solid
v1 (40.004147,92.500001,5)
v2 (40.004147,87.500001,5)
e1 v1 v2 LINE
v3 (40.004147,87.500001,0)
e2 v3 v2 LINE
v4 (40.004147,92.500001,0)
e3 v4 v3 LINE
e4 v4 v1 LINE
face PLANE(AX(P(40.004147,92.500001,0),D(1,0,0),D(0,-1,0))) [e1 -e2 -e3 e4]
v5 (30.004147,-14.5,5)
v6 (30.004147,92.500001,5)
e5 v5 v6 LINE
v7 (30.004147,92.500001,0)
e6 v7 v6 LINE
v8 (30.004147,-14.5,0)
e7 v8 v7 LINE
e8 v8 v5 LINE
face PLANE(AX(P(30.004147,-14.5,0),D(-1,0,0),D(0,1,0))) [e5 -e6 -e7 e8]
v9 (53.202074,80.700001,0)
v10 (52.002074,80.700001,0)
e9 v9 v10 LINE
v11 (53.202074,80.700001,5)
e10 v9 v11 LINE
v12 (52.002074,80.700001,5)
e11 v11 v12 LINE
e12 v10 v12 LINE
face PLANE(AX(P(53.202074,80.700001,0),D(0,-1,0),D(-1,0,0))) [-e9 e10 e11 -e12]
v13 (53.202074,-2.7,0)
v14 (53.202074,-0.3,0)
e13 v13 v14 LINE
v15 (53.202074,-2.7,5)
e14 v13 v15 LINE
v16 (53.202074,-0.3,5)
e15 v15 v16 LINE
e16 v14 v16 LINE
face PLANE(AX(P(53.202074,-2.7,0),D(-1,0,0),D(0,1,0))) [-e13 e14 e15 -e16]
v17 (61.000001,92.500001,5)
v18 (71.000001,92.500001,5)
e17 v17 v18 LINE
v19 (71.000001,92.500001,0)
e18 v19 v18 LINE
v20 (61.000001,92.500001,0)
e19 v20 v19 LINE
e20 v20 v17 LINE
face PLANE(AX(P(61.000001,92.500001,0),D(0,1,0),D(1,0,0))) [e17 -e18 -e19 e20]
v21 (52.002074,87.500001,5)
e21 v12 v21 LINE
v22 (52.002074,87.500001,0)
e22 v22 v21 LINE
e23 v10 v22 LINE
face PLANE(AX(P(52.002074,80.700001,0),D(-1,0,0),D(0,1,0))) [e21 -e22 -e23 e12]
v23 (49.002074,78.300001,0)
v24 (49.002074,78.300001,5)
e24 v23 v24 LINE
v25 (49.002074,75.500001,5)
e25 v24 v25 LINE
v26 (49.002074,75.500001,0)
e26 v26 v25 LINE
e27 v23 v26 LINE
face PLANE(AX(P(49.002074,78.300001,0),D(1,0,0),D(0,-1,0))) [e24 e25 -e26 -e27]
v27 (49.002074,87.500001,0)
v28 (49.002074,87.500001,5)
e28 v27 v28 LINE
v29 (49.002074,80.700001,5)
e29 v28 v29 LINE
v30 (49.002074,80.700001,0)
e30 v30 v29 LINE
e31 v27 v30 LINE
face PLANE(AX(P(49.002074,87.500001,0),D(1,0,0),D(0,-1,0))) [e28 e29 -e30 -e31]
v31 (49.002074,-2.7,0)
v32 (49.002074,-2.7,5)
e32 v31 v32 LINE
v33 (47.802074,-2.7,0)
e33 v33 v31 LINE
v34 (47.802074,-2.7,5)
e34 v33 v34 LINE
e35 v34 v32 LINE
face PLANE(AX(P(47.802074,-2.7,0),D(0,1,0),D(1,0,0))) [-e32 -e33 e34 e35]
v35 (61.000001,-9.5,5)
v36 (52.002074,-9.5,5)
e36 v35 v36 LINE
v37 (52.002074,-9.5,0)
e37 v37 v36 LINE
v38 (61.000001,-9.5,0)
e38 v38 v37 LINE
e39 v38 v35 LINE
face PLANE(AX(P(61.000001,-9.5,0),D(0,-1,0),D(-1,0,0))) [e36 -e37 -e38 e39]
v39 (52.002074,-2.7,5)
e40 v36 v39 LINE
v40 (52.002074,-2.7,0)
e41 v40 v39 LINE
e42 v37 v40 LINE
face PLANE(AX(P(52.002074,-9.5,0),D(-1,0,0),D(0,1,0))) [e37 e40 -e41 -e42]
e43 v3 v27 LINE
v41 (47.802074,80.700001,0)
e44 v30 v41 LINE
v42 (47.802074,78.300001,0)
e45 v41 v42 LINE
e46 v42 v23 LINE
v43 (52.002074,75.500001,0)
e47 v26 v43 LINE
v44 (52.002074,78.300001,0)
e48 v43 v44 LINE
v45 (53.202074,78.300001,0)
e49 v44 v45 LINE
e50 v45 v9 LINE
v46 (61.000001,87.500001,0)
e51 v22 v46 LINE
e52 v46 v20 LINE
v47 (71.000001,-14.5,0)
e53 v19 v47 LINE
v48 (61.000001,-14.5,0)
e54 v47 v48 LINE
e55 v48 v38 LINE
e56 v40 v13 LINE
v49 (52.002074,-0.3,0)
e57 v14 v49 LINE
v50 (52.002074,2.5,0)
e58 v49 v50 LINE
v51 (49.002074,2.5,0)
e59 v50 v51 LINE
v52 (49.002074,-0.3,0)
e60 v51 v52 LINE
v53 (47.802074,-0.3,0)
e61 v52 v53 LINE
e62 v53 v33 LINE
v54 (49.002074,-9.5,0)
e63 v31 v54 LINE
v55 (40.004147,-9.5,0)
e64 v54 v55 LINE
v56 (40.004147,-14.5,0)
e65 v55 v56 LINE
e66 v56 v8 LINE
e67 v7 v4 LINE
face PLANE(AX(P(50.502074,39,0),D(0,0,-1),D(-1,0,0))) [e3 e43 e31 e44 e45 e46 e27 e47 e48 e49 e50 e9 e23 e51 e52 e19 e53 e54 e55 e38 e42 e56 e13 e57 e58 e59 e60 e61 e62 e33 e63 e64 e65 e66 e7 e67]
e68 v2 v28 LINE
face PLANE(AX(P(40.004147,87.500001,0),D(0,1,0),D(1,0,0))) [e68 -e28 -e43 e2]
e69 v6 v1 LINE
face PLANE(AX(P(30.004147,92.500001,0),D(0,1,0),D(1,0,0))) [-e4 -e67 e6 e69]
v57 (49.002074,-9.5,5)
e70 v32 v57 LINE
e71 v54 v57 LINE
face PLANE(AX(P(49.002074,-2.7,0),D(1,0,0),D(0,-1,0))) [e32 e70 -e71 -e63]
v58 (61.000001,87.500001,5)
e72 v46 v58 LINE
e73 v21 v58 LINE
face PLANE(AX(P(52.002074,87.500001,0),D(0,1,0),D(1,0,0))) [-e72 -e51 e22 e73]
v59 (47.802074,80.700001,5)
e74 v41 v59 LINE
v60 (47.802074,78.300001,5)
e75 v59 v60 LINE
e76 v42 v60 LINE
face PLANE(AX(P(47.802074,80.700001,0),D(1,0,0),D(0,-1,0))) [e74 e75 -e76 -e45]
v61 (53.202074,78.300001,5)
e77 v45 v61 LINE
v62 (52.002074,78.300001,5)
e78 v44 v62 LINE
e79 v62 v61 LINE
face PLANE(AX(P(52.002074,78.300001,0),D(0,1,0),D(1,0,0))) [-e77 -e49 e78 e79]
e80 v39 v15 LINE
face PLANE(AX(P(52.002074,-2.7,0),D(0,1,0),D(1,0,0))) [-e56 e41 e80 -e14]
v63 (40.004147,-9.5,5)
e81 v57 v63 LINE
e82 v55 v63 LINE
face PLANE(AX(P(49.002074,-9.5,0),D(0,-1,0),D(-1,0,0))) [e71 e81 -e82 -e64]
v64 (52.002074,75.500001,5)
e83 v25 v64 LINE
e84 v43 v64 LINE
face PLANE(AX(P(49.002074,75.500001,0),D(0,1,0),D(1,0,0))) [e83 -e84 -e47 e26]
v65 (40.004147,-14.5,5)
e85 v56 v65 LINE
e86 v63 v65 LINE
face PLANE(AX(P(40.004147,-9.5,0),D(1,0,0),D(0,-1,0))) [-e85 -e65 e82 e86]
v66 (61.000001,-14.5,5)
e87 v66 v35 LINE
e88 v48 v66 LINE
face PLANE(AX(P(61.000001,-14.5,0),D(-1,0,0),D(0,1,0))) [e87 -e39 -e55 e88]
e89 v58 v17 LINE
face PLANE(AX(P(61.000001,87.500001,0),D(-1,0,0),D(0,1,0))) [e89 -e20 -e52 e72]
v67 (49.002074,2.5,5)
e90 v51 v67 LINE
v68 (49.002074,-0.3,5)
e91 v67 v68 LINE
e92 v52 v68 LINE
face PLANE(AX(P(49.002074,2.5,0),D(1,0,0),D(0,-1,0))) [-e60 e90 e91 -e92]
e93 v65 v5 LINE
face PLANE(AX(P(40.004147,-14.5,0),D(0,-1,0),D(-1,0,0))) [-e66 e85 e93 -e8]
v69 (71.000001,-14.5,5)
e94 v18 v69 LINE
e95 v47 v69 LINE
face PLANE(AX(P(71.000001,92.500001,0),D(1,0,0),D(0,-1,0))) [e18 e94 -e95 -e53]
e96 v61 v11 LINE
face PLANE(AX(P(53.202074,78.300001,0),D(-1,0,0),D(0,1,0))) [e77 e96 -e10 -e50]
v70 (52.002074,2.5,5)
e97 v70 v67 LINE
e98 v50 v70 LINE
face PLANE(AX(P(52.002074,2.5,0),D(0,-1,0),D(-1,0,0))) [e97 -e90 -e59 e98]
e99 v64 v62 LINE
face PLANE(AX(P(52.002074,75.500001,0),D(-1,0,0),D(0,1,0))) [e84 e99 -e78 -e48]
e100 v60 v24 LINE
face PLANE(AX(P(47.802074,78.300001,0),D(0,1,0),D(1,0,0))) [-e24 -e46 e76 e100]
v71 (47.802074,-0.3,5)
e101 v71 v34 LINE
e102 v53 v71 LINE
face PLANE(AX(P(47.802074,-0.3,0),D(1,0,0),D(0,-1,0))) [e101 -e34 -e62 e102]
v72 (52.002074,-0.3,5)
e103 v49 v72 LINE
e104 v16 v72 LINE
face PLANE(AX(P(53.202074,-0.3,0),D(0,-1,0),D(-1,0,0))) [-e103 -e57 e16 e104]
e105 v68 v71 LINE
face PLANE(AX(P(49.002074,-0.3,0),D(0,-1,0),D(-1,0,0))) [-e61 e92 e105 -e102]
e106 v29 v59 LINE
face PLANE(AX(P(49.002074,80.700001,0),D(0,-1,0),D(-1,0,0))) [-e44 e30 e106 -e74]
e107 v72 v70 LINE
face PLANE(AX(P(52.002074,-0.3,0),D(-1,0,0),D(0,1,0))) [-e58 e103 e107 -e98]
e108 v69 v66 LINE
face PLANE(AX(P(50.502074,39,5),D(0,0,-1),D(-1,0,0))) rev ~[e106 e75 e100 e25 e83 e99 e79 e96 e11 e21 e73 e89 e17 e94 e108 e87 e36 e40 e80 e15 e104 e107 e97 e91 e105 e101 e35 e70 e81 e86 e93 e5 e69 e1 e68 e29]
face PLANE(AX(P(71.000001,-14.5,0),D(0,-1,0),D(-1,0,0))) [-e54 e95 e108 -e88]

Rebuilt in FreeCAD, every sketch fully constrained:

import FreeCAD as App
import Part
import Sketcher

V = App.Vector


def add_polygon(sketch, points):
    """Adds a closed chain of lines whose ends are joined by coincident constraints."""
    first, n = sketch.GeometryCount, len(points)
    for a, b in zip(points, points[1:] + points[:1]):
        sketch.addGeometry(Part.LineSegment(App.Vector(*a, 0), App.Vector(*b, 0)), False)
    for i in range(n):
        sketch.addConstraint(Sketcher.Constraint("Coincident", first + i, 2, first + (i + 1) % n, 1))

doc = App.newDocument("Part")
body = doc.addObject("PartDesign::Body", "Body")

sketch1 = body.newObject("Sketcher::SketchObject", "Sketch")
sketch1.AttachmentSupport = (doc.getObject("XY_Plane"), [""])
sketch1.MapMode = "FlatFace"
add_polygon(sketch1, [(61.000001, 87.500001), (52.002074, 87.500001), (52.002074, 80.700001), (53.202074, 80.700001), (53.202074, 78.300001), (52.002074, 78.300001), (52.002074, 75.500001), (49.002074, 75.500001), (49.002074, 78.300001), (47.802074, 78.300001), (47.802074, 80.700001), (49.002074, 80.700001), (49.002074, 87.500001), (40.004147, 87.500001), (40.004147, 92.500001), (30.004147, 92.500001), (30.004147, -14.5), (40.004147, -14.5), (40.004147, -9.5), (49.002074, -9.5), (49.002074, -2.7), (47.802074, -2.7), (47.802074, -0.3), (49.002074, -0.3), (49.002074, 2.5), (52.002074, 2.5), (52.002074, -0.3), (53.202074, -0.3), (53.202074, -2.7), (52.002074, -2.7), (52.002074, -9.5), (61.000001, -9.5), (61.000001, -14.5), (71.000001, -14.5), (71.000001, 92.500001), (61.000001, 92.500001)])
sketch1.addConstraint([
    Sketcher.Constraint("Horizontal", 0),
    Sketcher.Constraint("Vertical", 1),
    Sketcher.Constraint("Horizontal", 2),
    Sketcher.Constraint("Vertical", 3),
    Sketcher.Constraint("Horizontal", 4),
    Sketcher.Constraint("Vertical", 5),
    Sketcher.Constraint("Horizontal", 6),
    Sketcher.Constraint("Vertical", 7),
    Sketcher.Constraint("Horizontal", 8),
    Sketcher.Constraint("Vertical", 9),
    Sketcher.Constraint("Horizontal", 10),
    Sketcher.Constraint("Vertical", 11),
    Sketcher.Constraint("Horizontal", 12),
    Sketcher.Constraint("Vertical", 13),
    Sketcher.Constraint("Horizontal", 14),
    Sketcher.Constraint("Vertical", 15),
    Sketcher.Constraint("Horizontal", 16),
    Sketcher.Constraint("Vertical", 17),
    Sketcher.Constraint("Horizontal", 18),
    Sketcher.Constraint("Vertical", 19),
    Sketcher.Constraint("Horizontal", 20),
    Sketcher.Constraint("Vertical", 21),
    Sketcher.Constraint("Horizontal", 22),
    Sketcher.Constraint("Vertical", 23),
    Sketcher.Constraint("Horizontal", 24),
    Sketcher.Constraint("Vertical", 25),
    Sketcher.Constraint("Horizontal", 26),
    Sketcher.Constraint("Vertical", 27),
    Sketcher.Constraint("Horizontal", 28),
    Sketcher.Constraint("Vertical", 29),
    Sketcher.Constraint("Horizontal", 30),
    Sketcher.Constraint("Vertical", 31),
    Sketcher.Constraint("Horizontal", 32),
    Sketcher.Constraint("Vertical", 33),
    Sketcher.Constraint("Horizontal", 34),
    Sketcher.Constraint("Vertical", 35),
    Sketcher.Constraint("Horizontal", 4, 2, 7, 2),
    Sketcher.Constraint("Horizontal", 2, 2, 9, 2),
    Sketcher.Constraint("Horizontal", 0, 2, 11, 2),
    Sketcher.Constraint("Horizontal", 22, 2, 25, 2),
    Sketcher.Constraint("Horizontal", 20, 2, 27, 2),
    Sketcher.Constraint("Horizontal", 18, 2, 29, 2),
    Sketcher.Constraint("Horizontal", 16, 2, 31, 2),
    Sketcher.Constraint("Horizontal", 14, 2, 33, 2),
    Sketcher.Constraint("Vertical", 1, 2, 4, 2),
    Sketcher.Constraint("Vertical", 7, 2, 10, 2),
    Sketcher.Constraint("Vertical", 13, 2, 16, 2),
    Sketcher.Constraint("Vertical", 11, 2, 18, 2),
    Sketcher.Constraint("Vertical", 9, 2, 20, 2),
    Sketcher.Constraint("Vertical", 19, 2, 22, 2),
    Sketcher.Constraint("Vertical", 5, 2, 24, 2),
    Sketcher.Constraint("Vertical", 3, 2, 26, 2),
    Sketcher.Constraint("Vertical", 25, 2, 28, 2),
    Sketcher.Constraint("Vertical", 31, 2, 34, 2),
    Sketcher.Constraint("Equal", 4, 8),
    Sketcher.Constraint("Equal", 0, 12),
    Sketcher.Constraint("Equal", 16, 32),
    Sketcher.Constraint("Equal", 13, 17),
    Sketcher.Constraint("Equal", 11, 19),
    Sketcher.Constraint("Equal", 9, 21),
    Sketcher.Constraint("Equal", 7, 23),
    Sketcher.Constraint("DistanceX", 6, 2, 6, 1, 3.0),
    Sketcher.Constraint("DistanceX", 14, 2, 14, 1, 10.0),
    Sketcher.Constraint("DistanceY", 13, 1, 13, 2, 5.0),
    Sketcher.Constraint("DistanceY", 15, 2, 15, 1, 107.000001),
    Sketcher.Constraint("DistanceX", 2, 1, 2, 2, 1.2),
    Sketcher.Constraint("DistanceY", 1, 2, 1, 1, 6.8),
    Sketcher.Constraint("DistanceY", 3, 2, 3, 1, 2.4),
    Sketcher.Constraint("DistanceY", 5, 2, 5, 1, 2.8),
    Sketcher.Constraint("DistanceX", -1, 1, 30, 2, 61.000001),
    Sketcher.Constraint("DistanceY", -1, 1, 0, 2, 87.500001),
    Sketcher.Constraint("DistanceX", 0, 2, 0, 1, 8.997927),
])
pad1 = body.newObject("PartDesign::Pad", "Pad")
pad1.Profile = sketch1
pad1.Length = 5

doc.recompute()
